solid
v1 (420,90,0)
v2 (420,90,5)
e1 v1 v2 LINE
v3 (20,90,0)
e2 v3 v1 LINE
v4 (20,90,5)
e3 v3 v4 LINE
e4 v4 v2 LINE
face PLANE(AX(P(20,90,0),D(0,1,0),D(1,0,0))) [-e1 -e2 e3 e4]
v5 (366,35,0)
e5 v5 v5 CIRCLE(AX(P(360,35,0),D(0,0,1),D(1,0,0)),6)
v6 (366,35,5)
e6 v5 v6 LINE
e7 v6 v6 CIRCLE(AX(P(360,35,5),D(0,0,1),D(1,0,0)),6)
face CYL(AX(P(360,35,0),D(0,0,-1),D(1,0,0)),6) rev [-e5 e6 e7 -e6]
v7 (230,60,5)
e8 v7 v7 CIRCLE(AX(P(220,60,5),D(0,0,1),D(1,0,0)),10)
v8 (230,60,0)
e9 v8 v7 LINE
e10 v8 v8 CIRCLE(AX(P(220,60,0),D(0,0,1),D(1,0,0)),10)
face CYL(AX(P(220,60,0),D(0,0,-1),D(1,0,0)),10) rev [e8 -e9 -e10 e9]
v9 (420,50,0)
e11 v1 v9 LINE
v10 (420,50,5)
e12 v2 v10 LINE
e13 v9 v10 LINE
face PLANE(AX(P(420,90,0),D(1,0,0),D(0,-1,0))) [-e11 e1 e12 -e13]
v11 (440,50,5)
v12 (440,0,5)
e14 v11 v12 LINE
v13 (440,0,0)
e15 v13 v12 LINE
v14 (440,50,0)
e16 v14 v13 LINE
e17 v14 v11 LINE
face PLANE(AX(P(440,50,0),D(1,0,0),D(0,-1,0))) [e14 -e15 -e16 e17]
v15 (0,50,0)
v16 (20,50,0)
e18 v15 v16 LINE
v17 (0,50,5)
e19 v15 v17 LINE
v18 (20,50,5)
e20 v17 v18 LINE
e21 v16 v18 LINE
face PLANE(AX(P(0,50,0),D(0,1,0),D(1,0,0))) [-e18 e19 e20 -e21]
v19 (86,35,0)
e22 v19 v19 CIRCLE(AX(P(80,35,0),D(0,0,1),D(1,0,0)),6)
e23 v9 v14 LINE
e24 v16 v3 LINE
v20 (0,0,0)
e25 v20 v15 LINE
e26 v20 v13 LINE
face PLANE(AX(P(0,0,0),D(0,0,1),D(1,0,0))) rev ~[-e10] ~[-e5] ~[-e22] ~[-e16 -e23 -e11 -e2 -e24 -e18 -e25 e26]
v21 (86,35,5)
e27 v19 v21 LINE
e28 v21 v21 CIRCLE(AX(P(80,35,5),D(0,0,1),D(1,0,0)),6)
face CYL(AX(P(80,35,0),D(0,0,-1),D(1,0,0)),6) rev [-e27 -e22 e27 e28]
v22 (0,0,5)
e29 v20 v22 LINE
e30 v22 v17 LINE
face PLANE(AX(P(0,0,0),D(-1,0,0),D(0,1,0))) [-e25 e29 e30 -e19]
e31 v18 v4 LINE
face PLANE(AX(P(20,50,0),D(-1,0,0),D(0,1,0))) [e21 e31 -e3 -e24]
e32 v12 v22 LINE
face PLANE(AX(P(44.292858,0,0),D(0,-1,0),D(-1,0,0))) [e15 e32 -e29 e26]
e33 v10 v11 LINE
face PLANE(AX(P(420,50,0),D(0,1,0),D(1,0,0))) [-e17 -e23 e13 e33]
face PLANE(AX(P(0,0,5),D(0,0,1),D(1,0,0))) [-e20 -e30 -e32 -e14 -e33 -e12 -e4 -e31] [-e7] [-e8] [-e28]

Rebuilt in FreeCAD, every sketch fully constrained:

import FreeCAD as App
import Part
import Sketcher

doc = App.newDocument("Part")
params = doc.addObject("Spreadsheet::Sheet", "Params")
for row, (alias, value) in enumerate([
    ("sketch1_diameter", "12 mm"),
    ("sketch1_diameter2", "20 mm"),
    ("sketch1_width", "20 mm"),
    ("sketch1_width2", "400 mm"),
    ("sketch1_height", "50 mm"),
    ("pad1_length", "5 mm"),
], start=1):
    params.set(f"A{row}", alias)
    params.set(f"B{row}", "=" + value)
    params.setAlias(f"B{row}", alias)

body = doc.addObject("PartDesign::Body", "Body")

sketch1 = doc.addObject("Sketcher::SketchObject", "Sketch")
body.addObject(sketch1)
sketch1.AttachmentSupport = (doc.XY_Plane, [""])
sketch1.MapMode = "FlatFace"
sketch1.addGeometry(Part.LineSegment(App.Vector(0, 50, 0), App.Vector(0, 0, 0)), False)
sketch1.addGeometry(Part.LineSegment(App.Vector(0, 0, 0), App.Vector(440, 0, 0)), False)
sketch1.addGeometry(Part.LineSegment(App.Vector(440, 0, 0), App.Vector(440, 50, 0)), False)
sketch1.addGeometry(Part.LineSegment(App.Vector(440, 50, 0), App.Vector(420, 50, 0)), False)
sketch1.addGeometry(Part.LineSegment(App.Vector(420, 50, 0), App.Vector(420, 90, 0)), False)
sketch1.addGeometry(Part.LineSegment(App.Vector(420, 90, 0), App.Vector(20, 90, 0)), False)
sketch1.addGeometry(Part.LineSegment(App.Vector(20, 90, 0), App.Vector(20, 50, 0)), False)
sketch1.addGeometry(Part.LineSegment(App.Vector(20, 50, 0), App.Vector(0, 50, 0)), False)
sketch1.addGeometry(Part.Circle(App.Vector(360, 35, 0), App.Vector(0, 0, 1), 6), False)
sketch1.addGeometry(Part.Circle(App.Vector(220, 60, 0), App.Vector(0, 0, 1), 10), False)
sketch1.addGeometry(Part.Circle(App.Vector(80, 35, 0), App.Vector(0, 0, 1), 6), False)
sketch1.addConstraint(Sketcher.Constraint("Coincident", 0, 2, 1, 1))
sketch1.addConstraint(Sketcher.Constraint("Coincident", 1, 2, 2, 1))
sketch1.addConstraint(Sketcher.Constraint("Coincident", 2, 2, 3, 1))
sketch1.addConstraint(Sketcher.Constraint("Coincident", 3, 2, 4, 1))
sketch1.addConstraint(Sketcher.Constraint("Coincident", 4, 2, 5, 1))
sketch1.addConstraint(Sketcher.Constraint("Coincident", 5, 2, 6, 1))
sketch1.addConstraint(Sketcher.Constraint("Coincident", 6, 2, 7, 1))
sketch1.addConstraint(Sketcher.Constraint("Coincident", 7, 2, 0, 1))
sketch1.addConstraint(Sketcher.Constraint("Vertical", 0))
sketch1.addConstraint(Sketcher.Constraint("Horizontal", 1))
sketch1.addConstraint(Sketcher.Constraint("Vertical", 2))
sketch1.addConstraint(Sketcher.Constraint("Horizontal", 3))
sketch1.addConstraint(Sketcher.Constraint("Vertical", 4))
sketch1.addConstraint(Sketcher.Constraint("Horizontal", 5))
sketch1.addConstraint(Sketcher.Constraint("Vertical", 6))
sketch1.addConstraint(Sketcher.Constraint("Horizontal", 7))
sketch1.addConstraint(Sketcher.Constraint("Coincident", 0, 2, -1, 1))
sketch1.addConstraint(Sketcher.Constraint("Equal", 8, 10))
sketch1.addConstraint(Sketcher.Constraint("Horizontal", 8, 3, 10, 3))
sketch1.addConstraint(Sketcher.Constraint("Horizontal", 3, 2, 6, 2))
sketch1.addConstraint(Sketcher.Constraint("Equal", 3, 7))
sketch1.addConstraint(Sketcher.Constraint("Diameter", 8, 12.0))
sketch1.addConstraint(Sketcher.Constraint("Diameter", 9, 20.0))
sketch1.addConstraint(Sketcher.Constraint("DistanceX", 3, 2, 3, 1, 20.0))
sketch1.addConstraint(Sketcher.Constraint("DistanceX", 5, 2, 5, 1, 400.0))
sketch1.addConstraint(Sketcher.Constraint("DistanceY", 0, 2, 0, 1, 50.0))
sketch1.addConstraint(Sketcher.Constraint("DistanceY", 4, 1, 4, 2, 40.0))
sketch1.addConstraint(Sketcher.Constraint("DistanceY", -1, 1, 8, 3, 35.0))
sketch1.addConstraint(Sketcher.Constraint("DistanceX", -1, 1, 10, 3, 80.0))
sketch1.addConstraint(Sketcher.Constraint("DistanceX", 8, 3, 1, 2, 80.0))
sketch1.addConstraint(Sketcher.Constraint("DistanceY", 9, 3, 4, 2, 30.0))
sketch1.addConstraint(Sketcher.Constraint("DistanceX", -1, 1, 9, 3, 220.0))
sketch1.setExpression("Constraints[21]", "Params.sketch1_diameter")
sketch1.setExpression("Constraints[22]", "Params.sketch1_diameter2")
sketch1.setExpression("Constraints[23]", "Params.sketch1_width")
sketch1.setExpression("Constraints[24]", "Params.sketch1_width2")
sketch1.setExpression("Constraints[25]", "Params.sketch1_height")
pad1 = doc.addObject("PartDesign::Pad", "Pad")
body.addObject(pad1)
pad1.Profile = sketch1
pad1.setExpression("Length", "Params.pad1_length")

doc.recompute()
